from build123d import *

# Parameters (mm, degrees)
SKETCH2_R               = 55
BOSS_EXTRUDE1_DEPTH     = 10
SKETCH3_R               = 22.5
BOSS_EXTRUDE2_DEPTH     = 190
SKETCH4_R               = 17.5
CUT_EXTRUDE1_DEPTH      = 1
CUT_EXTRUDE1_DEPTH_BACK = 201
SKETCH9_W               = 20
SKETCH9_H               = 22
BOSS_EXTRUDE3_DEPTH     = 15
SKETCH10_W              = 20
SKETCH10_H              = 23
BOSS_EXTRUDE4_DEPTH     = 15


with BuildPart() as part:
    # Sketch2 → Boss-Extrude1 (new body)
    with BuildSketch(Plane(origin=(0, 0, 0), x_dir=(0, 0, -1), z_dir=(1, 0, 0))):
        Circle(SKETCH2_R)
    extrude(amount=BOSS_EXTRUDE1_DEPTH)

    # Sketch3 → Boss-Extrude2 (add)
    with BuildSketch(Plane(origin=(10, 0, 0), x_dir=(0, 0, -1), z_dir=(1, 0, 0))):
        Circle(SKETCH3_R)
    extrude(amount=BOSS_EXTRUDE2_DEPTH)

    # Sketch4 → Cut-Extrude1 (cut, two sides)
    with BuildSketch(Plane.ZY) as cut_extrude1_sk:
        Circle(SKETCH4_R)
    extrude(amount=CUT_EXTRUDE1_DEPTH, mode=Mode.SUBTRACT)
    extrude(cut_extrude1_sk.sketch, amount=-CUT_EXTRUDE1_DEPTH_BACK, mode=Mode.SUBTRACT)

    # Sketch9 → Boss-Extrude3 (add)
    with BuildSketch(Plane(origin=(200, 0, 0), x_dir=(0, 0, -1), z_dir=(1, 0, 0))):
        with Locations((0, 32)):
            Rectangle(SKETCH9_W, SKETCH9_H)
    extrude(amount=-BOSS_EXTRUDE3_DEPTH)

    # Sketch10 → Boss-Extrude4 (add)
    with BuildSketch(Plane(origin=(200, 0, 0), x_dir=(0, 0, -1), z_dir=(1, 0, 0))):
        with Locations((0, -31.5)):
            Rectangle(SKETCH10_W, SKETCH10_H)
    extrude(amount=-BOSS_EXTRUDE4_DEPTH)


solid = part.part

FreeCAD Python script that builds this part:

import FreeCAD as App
import Part
import Sketcher


def add_polygon(sketch, points):
    """Adds a closed chain of lines whose ends are joined by coincident constraints."""
    first, n = sketch.GeometryCount, len(points)
    for a, b in zip(points, points[1:] + points[:1]):
        sketch.addGeometry(Part.LineSegment(App.Vector(*a, 0), App.Vector(*b, 0)), False)
    for i in range(n):
        sketch.addConstraint(Sketcher.Constraint("Coincident", first + i, 2, first + (i + 1) % n, 1))

doc = App.newDocument("Part")
params = doc.addObject("Spreadsheet::Sheet", "Params")
for row, (alias, value) in enumerate([
    ("sketch1_diameter", "110 mm"),
    ("pad1_length", "10 mm"),
    ("sketch2_diameter", "45 mm"),
    ("pad2_length", "190 mm"),
    ("sketch3_diameter", "35 mm"),
    ("sketch4_width", "22 mm"),
    ("sketch4_height", "20 mm"),
    ("pad3_length", "15 mm"),
    ("sketch5_width", "23 mm"),
    ("sketch5_height", "20 mm"),
    ("pad4_length", "15 mm"),
], start=1):
    params.set(f"A{row}", alias)
    params.set(f"B{row}", "=" + value)
    params.setAlias(f"B{row}", alias)

body = doc.addObject("PartDesign::Body", "Body")

sketch1 = doc.addObject("Sketcher::SketchObject", "Sketch")
body.addObject(sketch1)
sketch1.AttachmentSupport = (doc.YZ_Plane, [""])
sketch1.MapMode = "FlatFace"
sketch1.addGeometry(Part.Circle(App.Vector(0, 0, 0), App.Vector(0, 0, 1), 55), False)
sketch1.addConstraint([
    Sketcher.Constraint("Coincident", 0, 3, -1, 1),
    Sketcher.Constraint("Diameter", 0, 110.0),
])
sketch1.setExpression("Constraints[1]", "Params.sketch1_diameter")
pad1 = doc.addObject("PartDesign::Pad", "Pad")
body.addObject(pad1)
pad1.Profile = sketch1
pad1.setExpression("Length", "Params.pad1_length")

sketch2 = doc.addObject("Sketcher::SketchObject", "Sketch001")
body.addObject(sketch2)
sketch2.AttachmentSupport = (doc.YZ_Plane, [""])
sketch2.MapMode = "FlatFace"
sketch2.AttachmentOffset = App.Placement(App.Vector(0, 0, 10), App.Rotation())
sketch2.addGeometry(Part.Circle(App.Vector(0, 0, 0), App.Vector(0, 0, 1), 22), False)
sketch2.addConstraint([
    Sketcher.Constraint("Coincident", 0, 3, -1, 1),
    Sketcher.Constraint("Diameter", 0, 45.0),
])
sketch2.setExpression("Constraints[1]", "Params.sketch2_diameter")
pad2 = doc.addObject("PartDesign::Pad", "Pad001")
body.addObject(pad2)
pad2.Profile = sketch2
pad2.setExpression("Length", "Params.pad2_length")

sketch3 = doc.addObject("Sketcher::SketchObject", "Sketch002")
body.addObject(sketch3)
sketch3.AttachmentSupport = (doc.YZ_Plane, [""])
sketch3.MapMode = "FlatFace"
sketch3.addGeometry(Part.Circle(App.Vector(0, 0, 0), App.Vector(0, 0, 1), 18), False)
sketch3.addConstraint([
    Sketcher.Constraint("Coincident", 0, 3, -1, 1),
    Sketcher.Constraint("Diameter", 0, 35.0),
])
sketch3.setExpression("Constraints[1]", "Params.sketch3_diameter")
pocket1 = doc.addObject("PartDesign::Pocket", "Pocket")
body.addObject(pocket1)
pocket1.Profile = sketch3
pocket1.Type = "ThroughAll"
pocket1.Midplane = True

sketch4 = doc.addObject("Sketcher::SketchObject", "Sketch003")
body.addObject(sketch4)
sketch4.AttachmentSupport = (doc.YZ_Plane, [""])
sketch4.MapMode = "FlatFace"
sketch4.AttachmentOffset = App.Placement(App.Vector(0, 0, 200), App.Rotation())
add_polygon(sketch4, [(43, 10), (21, 10), (21, -10), (43, -10)])
sketch4.addConstraint([
    Sketcher.Constraint("Horizontal", 0),
    Sketcher.Constraint("Vertical", 1),
    Sketcher.Constraint("Horizontal", 2),
    Sketcher.Constraint("Vertical", 3),
    Sketcher.Constraint("DistanceX", 0, 2, 0, 1, 22.0),
    Sketcher.Constraint("DistanceY", 1, 2, 1, 1, 20.0),
    Sketcher.Constraint("DistanceX", -1, 1, 0, 2, 21.0),
    Sketcher.Constraint("DistanceY", -1, 1, 0, 2, 10.0),
])
sketch4.setExpression("Constraints[8]", "Params.sketch4_width")
sketch4.setExpression("Constraints[9]", "Params.sketch4_height")
pad3 = doc.addObject("PartDesign::Pad", "Pad002")
body.addObject(pad3)
pad3.Profile = sketch4
pad3.setExpression("Length", "Params.pad3_length")
pad3.Reversed = True

sketch5 = doc.addObject("Sketcher::SketchObject", "Sketch004")
body.addObject(sketch5)
sketch5.AttachmentSupport = (doc.YZ_Plane, [""])
sketch5.MapMode = "FlatFace"
sketch5.AttachmentOffset = App.Placement(App.Vector(0, 0, 200), App.Rotation())
add_polygon(sketch5, [(-20, 10), (-43, 10), (-43, -10), (-20, -10)])
sketch5.addConstraint([
    Sketcher.Constraint("Horizontal", 0),
    Sketcher.Constraint("Vertical", 1),
    Sketcher.Constraint("Horizontal", 2),
    Sketcher.Constraint("Vertical", 3),
    Sketcher.Constraint("DistanceX", 0, 2, 0, 1, 23.0),
    Sketcher.Constraint("DistanceY", 1, 2, 1, 1, 20.0),
    Sketcher.Constraint("DistanceX", 0, 2, -1, 1, 43.0),
    Sketcher.Constraint("DistanceY", -1, 1, 0, 2, 10.0),
])
sketch5.setExpression("Constraints[8]", "Params.sketch5_width")
sketch5.setExpression("Constraints[9]", "Params.sketch5_height")
pad4 = doc.addObject("PartDesign::Pad", "Pad003")
body.addObject(pad4)
pad4.Profile = sketch5
pad4.setExpression("Length", "Params.pad4_length")
pad4.Reversed = True

doc.recompute()
